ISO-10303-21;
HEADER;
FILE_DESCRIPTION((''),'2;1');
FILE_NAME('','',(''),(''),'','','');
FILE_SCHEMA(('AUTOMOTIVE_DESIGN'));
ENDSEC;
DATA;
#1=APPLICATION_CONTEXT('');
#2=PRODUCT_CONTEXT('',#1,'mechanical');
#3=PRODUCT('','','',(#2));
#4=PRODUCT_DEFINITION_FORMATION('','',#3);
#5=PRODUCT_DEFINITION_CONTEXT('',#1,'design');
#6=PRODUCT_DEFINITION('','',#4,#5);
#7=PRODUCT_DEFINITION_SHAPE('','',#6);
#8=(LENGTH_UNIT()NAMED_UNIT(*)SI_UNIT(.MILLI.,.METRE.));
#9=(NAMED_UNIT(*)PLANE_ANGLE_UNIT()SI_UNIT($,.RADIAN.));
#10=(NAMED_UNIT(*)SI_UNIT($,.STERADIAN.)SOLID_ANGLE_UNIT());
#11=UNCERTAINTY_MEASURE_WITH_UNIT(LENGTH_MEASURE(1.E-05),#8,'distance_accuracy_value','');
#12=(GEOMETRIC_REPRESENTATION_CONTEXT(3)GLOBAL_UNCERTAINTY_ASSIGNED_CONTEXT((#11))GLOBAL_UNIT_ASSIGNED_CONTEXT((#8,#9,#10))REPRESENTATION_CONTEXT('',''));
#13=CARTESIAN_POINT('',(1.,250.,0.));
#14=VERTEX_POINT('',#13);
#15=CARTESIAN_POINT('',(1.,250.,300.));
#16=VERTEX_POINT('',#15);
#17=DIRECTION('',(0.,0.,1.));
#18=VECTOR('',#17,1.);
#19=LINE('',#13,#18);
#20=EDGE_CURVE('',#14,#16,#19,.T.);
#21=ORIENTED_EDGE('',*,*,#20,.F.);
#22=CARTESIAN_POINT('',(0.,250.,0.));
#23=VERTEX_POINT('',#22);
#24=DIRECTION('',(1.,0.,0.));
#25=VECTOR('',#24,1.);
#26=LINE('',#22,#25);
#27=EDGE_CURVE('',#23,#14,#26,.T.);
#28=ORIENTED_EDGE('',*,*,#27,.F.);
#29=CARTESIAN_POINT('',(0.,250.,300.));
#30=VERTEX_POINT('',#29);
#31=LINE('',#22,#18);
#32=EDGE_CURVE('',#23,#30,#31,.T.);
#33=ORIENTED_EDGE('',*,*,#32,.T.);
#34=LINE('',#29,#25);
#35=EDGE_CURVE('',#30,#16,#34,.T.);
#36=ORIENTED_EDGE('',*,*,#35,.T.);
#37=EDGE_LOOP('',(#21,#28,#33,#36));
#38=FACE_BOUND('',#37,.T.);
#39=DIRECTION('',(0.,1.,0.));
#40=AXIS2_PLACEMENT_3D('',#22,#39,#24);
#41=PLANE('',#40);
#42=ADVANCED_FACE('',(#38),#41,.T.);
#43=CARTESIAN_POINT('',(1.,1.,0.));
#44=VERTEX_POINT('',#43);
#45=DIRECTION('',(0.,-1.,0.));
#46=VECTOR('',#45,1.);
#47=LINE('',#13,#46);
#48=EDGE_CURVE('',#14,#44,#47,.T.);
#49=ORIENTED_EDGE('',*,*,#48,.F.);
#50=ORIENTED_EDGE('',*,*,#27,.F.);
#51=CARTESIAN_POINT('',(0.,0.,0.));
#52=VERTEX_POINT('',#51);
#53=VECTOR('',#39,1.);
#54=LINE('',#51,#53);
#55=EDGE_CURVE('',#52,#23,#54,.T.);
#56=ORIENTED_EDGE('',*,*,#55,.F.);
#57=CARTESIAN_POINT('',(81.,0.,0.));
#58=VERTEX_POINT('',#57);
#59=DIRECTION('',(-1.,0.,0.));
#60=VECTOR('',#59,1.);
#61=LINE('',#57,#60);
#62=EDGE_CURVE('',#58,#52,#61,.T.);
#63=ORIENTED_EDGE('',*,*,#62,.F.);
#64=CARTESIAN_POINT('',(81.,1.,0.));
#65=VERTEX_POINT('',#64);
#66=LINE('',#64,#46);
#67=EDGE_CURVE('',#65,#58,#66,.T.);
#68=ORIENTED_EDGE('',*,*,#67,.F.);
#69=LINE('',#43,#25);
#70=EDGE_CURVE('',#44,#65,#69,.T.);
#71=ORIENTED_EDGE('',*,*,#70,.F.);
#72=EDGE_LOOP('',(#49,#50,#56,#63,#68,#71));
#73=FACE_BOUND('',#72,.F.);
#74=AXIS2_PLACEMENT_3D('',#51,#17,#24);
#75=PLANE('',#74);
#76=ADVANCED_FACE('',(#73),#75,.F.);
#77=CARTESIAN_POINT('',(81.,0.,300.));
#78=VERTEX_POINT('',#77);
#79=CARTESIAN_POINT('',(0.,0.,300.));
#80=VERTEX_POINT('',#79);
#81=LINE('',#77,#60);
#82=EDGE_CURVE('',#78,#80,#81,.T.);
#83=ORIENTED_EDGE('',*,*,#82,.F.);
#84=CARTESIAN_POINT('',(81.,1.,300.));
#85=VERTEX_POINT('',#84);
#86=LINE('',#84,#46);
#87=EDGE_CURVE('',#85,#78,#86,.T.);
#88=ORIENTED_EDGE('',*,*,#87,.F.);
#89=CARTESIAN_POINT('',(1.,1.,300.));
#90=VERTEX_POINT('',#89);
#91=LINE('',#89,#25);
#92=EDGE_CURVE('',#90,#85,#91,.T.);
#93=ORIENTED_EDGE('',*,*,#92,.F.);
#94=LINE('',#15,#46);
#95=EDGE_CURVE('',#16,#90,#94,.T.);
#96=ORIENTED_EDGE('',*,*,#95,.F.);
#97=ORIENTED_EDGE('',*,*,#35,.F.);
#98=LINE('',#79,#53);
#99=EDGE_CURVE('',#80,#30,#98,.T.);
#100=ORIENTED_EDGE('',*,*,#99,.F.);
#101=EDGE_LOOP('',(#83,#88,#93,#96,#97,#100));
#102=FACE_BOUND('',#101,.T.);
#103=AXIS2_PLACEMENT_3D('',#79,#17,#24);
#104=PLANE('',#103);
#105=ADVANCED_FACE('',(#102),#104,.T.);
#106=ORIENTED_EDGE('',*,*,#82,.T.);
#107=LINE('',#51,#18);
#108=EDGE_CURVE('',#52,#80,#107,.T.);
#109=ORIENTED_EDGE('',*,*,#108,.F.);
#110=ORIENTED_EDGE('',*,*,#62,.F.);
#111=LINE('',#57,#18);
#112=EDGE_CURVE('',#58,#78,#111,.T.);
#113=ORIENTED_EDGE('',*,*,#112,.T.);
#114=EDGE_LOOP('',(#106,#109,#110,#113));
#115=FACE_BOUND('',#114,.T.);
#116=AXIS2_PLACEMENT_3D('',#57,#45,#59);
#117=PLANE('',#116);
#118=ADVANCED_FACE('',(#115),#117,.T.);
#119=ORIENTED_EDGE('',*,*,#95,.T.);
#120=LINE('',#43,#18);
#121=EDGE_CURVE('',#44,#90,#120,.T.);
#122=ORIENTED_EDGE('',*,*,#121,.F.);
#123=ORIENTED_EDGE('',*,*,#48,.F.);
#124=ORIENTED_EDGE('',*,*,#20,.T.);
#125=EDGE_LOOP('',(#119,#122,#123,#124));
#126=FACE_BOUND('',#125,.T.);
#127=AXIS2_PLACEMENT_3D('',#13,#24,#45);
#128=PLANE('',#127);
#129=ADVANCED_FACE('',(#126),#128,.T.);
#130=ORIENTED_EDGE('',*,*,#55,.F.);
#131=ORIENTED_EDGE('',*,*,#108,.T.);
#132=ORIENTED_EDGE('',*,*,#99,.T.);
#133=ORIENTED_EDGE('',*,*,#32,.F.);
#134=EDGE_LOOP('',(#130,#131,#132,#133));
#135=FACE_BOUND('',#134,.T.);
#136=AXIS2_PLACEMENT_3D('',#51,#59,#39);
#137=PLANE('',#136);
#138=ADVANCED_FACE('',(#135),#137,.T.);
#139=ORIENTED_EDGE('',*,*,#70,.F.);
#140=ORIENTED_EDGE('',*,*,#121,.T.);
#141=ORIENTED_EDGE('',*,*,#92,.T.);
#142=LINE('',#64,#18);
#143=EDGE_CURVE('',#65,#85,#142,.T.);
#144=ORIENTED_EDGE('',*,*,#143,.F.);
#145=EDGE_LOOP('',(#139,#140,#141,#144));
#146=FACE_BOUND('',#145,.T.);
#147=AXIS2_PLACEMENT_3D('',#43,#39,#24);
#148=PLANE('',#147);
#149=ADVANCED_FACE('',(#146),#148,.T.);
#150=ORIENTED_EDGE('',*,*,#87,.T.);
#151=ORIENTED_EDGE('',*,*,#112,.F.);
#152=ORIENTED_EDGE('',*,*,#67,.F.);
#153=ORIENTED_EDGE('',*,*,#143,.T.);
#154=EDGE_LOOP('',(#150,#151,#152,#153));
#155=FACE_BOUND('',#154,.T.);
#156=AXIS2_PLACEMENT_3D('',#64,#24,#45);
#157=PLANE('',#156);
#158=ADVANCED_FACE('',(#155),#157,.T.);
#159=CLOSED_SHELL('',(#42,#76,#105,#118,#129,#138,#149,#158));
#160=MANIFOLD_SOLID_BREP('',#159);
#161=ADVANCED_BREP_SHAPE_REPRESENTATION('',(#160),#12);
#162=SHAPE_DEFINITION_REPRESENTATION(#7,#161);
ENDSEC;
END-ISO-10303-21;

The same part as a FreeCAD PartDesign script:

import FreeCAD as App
import Part
import Sketcher
from FreeCAD import Vector

doc = App.newDocument("Part")
body = doc.addObject("PartDesign::Body", "Body")

# Sketch on XY plane
sketch1 = body.newObject("Sketcher::SketchObject", "Sketch")
sketch1.AttachmentSupport = (doc.getObject("XY_Plane"), [""])
sketch1.MapMode = "FlatFace"
sketch1.addGeometry([
    Part.LineSegment(Vector(0, 250, 0), Vector(0, 0, 0)),  # 0
    Part.LineSegment(Vector(0, 0, 0), Vector(81, 0, 0)),  # 1
    Part.LineSegment(Vector(81, 0, 0), Vector(81, 1, 0)),  # 2
    Part.LineSegment(Vector(81, 1, 0), Vector(1, 1, 0)),  # 3
    Part.LineSegment(Vector(1, 1, 0), Vector(1, 250, 0)),  # 4
    Part.LineSegment(Vector(1, 250, 0), Vector(0, 250, 0)),  # 5
], False)
sketch1.addConstraint([
    Sketcher.Constraint("Coincident", 0, 2, 1, 1),
    Sketcher.Constraint("Coincident", 1, 2, 2, 1),
    Sketcher.Constraint("Coincident", 2, 2, 3, 1),
    Sketcher.Constraint("Coincident", 3, 2, 4, 1),
    Sketcher.Constraint("Coincident", 4, 2, 5, 1),
    Sketcher.Constraint("Coincident", 5, 2, 0, 1),
    Sketcher.Constraint("Vertical", 0),
    Sketcher.Constraint("Horizontal", 1),
    Sketcher.Constraint("Vertical", 2),
    Sketcher.Constraint("Horizontal", 3),
    Sketcher.Constraint("Vertical", 4),
    Sketcher.Constraint("Horizontal", 5),
    Sketcher.Constraint("Coincident", 0, 2, -1, 1),
    Sketcher.Constraint("Equal", 5, 2),
    Sketcher.Constraint("DistanceX", 3, 2, 3, 1, 80.0),
    Sketcher.Constraint("DistanceX", 5, 2, 5, 1, 1.0),
    Sketcher.Constraint("DistanceY", 0, 2, 0, 1, 250.0),
])
pad1 = body.newObject("PartDesign::Pad", "Pad")
pad1.Profile = sketch1
pad1.Length = 300

doc.recompute()
